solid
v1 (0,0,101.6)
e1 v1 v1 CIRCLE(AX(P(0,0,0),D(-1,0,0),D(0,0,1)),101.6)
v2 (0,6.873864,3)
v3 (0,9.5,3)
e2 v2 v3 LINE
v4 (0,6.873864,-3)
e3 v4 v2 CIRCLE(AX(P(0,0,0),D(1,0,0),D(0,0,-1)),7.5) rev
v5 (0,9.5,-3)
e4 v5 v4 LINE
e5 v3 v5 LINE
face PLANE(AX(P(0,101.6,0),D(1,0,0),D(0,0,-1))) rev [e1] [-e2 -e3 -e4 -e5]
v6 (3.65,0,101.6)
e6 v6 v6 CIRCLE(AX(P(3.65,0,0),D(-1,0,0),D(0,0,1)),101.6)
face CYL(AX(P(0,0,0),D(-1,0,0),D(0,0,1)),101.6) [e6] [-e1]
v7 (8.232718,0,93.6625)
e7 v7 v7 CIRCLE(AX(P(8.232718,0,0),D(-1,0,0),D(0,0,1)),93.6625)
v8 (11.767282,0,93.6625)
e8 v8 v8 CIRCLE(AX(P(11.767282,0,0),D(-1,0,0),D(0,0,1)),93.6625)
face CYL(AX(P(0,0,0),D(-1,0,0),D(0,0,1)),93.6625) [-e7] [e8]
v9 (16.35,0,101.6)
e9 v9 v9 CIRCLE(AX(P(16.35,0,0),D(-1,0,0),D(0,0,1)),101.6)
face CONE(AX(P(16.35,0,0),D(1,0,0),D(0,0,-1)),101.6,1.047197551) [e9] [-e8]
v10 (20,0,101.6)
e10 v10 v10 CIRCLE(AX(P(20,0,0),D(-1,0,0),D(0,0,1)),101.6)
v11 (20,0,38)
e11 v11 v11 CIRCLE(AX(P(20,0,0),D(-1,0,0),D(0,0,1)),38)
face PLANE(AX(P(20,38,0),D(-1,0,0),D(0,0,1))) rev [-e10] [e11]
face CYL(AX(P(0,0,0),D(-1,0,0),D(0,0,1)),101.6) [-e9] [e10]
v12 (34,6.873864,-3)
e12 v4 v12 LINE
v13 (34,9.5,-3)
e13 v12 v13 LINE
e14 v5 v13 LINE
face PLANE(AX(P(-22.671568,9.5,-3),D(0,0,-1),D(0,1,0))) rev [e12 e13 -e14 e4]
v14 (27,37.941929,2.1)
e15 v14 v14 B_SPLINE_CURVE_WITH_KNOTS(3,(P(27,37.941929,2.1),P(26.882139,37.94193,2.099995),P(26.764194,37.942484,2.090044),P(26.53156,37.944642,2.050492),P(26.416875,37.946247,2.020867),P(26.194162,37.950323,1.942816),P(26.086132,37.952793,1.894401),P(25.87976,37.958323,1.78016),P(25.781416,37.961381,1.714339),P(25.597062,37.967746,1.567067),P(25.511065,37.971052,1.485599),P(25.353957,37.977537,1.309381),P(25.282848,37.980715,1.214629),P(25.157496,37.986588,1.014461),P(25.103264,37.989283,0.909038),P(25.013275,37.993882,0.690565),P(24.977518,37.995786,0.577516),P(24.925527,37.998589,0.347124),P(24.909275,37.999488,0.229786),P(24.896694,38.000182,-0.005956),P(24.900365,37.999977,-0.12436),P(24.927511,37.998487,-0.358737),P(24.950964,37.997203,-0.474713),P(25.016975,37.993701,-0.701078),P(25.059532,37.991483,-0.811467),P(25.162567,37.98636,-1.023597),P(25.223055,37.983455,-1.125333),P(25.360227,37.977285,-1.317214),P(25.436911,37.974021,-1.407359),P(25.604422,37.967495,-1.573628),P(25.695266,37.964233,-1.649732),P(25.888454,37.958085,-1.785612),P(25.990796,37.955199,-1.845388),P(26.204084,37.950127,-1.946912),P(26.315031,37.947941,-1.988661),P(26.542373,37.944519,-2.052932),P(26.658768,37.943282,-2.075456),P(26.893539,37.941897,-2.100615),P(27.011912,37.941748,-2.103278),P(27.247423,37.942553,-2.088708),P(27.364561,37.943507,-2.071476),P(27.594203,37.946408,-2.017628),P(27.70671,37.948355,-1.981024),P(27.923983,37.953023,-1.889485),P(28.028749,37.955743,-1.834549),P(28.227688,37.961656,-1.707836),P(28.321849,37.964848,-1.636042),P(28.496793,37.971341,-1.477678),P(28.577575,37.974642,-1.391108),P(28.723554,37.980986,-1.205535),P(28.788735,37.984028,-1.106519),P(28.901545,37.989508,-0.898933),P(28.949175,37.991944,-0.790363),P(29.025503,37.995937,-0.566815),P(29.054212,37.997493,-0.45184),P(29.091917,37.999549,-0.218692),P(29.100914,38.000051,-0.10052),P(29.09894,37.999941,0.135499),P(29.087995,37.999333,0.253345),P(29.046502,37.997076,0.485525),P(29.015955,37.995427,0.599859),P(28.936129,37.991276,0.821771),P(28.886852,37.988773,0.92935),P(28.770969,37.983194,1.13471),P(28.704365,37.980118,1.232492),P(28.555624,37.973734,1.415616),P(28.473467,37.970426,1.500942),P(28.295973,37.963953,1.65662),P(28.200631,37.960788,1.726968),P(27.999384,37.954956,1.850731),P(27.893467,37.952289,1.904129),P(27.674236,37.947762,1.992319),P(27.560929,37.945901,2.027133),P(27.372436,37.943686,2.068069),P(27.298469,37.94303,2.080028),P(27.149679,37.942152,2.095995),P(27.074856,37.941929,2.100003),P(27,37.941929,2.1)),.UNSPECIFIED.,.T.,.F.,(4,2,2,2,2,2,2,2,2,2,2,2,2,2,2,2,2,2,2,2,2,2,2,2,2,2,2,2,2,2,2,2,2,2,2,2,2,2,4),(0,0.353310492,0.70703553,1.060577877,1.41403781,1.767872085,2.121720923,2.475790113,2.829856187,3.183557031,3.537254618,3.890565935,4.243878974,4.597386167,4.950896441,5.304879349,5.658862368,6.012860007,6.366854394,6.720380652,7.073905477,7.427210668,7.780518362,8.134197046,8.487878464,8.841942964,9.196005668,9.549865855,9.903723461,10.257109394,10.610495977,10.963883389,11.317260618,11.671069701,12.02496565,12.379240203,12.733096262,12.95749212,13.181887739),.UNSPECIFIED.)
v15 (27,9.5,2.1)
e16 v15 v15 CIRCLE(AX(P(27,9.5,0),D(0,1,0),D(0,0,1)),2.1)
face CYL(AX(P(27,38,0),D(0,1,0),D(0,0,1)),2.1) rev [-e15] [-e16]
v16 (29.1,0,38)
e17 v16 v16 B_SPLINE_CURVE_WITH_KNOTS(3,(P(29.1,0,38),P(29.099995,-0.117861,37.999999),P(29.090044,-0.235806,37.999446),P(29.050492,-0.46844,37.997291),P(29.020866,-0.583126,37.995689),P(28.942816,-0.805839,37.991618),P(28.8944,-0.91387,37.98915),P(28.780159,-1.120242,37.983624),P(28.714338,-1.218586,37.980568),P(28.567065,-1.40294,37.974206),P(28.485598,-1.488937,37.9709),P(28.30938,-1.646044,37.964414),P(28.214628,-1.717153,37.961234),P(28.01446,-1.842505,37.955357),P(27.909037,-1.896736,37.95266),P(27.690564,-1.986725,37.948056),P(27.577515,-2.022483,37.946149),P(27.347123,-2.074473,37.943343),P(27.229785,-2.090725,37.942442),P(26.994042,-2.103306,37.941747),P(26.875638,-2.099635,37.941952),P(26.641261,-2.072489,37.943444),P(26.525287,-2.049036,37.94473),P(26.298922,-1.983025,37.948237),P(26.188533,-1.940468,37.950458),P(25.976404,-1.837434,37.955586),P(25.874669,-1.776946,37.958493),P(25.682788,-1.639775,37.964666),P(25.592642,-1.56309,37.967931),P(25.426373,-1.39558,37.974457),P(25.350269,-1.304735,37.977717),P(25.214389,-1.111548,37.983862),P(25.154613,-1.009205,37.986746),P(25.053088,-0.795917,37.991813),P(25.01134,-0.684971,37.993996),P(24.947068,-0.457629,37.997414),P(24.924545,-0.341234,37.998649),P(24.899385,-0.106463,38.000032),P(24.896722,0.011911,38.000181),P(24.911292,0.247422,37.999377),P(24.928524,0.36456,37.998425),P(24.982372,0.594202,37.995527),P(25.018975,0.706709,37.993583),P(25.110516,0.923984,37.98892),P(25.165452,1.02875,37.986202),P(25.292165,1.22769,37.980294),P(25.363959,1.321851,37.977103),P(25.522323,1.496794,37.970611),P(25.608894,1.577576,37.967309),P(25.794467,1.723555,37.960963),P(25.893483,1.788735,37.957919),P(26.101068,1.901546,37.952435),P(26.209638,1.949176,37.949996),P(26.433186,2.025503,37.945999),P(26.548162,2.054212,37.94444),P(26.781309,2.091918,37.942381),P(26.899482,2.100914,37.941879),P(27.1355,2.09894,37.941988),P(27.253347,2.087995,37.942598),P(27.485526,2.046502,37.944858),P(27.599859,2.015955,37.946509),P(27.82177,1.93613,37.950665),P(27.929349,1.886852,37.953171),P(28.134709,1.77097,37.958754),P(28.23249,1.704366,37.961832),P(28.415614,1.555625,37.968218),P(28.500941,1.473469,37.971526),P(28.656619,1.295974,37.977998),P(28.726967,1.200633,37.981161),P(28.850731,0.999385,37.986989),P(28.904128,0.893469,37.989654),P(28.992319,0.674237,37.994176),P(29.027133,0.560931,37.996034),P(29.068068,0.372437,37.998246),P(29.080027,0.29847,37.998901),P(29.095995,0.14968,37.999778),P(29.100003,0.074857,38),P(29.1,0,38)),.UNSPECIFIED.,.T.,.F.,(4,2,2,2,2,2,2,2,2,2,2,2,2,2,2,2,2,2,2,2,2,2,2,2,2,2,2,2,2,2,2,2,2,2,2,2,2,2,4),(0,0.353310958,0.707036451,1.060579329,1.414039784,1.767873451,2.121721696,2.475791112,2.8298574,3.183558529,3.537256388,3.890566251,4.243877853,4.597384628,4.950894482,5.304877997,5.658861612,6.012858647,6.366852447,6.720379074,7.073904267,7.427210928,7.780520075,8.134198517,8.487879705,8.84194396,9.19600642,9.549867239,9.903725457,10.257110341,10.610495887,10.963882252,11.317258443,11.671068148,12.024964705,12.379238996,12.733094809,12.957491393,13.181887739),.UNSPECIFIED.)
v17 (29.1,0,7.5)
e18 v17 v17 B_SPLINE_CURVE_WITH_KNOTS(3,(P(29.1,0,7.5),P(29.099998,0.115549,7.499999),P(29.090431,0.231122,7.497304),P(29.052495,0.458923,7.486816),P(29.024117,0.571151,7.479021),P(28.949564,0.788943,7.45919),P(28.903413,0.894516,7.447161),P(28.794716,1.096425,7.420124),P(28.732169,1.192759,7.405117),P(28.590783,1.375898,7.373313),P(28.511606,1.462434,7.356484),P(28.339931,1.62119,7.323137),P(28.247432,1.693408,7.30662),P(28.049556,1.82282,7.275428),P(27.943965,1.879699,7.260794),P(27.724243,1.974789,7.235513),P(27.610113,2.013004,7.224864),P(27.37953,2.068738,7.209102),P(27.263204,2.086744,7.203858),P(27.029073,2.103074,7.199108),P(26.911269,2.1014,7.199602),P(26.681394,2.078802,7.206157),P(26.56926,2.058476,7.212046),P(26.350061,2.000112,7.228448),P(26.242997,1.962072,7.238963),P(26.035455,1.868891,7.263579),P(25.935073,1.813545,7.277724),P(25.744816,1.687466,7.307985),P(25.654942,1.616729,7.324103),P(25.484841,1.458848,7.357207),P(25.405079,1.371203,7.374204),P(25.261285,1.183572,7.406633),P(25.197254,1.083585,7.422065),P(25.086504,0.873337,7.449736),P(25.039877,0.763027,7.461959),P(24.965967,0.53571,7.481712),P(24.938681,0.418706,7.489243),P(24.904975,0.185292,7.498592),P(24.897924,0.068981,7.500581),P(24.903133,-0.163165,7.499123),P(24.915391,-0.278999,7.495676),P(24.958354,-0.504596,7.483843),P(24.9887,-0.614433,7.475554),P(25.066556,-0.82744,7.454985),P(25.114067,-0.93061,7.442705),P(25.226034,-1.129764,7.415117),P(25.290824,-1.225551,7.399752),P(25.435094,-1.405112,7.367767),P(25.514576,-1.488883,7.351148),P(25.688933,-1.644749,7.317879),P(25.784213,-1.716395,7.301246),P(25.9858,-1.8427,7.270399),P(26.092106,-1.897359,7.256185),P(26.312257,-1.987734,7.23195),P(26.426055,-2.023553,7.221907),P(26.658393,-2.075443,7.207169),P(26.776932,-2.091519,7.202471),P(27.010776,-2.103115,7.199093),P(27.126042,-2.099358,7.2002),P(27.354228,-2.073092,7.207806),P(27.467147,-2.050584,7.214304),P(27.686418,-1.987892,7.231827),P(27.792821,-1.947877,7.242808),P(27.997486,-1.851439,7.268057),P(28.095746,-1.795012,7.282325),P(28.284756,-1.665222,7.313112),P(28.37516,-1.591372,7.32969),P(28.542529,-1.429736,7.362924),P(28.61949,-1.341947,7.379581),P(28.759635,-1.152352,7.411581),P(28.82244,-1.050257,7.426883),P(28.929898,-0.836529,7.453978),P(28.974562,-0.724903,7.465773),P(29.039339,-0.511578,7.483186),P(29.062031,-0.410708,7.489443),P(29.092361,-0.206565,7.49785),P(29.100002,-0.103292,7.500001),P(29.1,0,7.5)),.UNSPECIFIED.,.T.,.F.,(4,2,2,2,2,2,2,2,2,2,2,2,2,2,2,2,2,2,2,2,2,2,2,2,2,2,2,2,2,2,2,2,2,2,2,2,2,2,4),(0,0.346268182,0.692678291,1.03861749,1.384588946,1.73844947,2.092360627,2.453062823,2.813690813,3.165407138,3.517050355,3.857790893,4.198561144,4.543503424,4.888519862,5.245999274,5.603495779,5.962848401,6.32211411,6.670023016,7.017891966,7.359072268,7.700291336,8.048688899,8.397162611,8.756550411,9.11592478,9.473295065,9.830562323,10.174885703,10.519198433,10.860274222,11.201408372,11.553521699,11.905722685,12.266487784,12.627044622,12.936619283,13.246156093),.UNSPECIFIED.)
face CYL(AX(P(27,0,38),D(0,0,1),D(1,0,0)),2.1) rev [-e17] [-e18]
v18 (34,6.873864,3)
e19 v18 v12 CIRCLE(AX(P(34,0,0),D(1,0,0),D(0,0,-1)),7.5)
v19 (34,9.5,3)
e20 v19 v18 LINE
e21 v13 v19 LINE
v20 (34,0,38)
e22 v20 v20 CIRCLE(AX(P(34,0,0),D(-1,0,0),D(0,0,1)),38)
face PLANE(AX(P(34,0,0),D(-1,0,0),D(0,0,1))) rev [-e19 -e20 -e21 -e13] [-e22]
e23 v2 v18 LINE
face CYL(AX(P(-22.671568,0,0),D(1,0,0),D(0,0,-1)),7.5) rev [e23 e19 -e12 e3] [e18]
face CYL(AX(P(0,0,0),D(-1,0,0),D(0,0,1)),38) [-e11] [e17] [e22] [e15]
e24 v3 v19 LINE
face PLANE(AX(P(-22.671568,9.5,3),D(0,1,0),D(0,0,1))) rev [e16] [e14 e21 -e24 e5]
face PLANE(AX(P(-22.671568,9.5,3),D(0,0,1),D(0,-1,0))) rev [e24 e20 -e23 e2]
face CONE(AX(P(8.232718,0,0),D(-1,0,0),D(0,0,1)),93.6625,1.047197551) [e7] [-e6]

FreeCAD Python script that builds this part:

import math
import FreeCAD as App
import Part
import Sketcher

V = App.Vector
Q = App.Units.Quantity

doc = App.newDocument("Part")
body = doc.addObject("PartDesign::Body", "Body")

sketch1 = body.newObject("Sketcher::SketchObject", "Sketch")
sketch1.AttachmentSupport = (doc.getObject("XY_Plane"), [""])
sketch1.MapMode = "FlatFace"
sketch1.addGeometry([
    Part.LineSegment(V(0, 0, 0), V(34, 0, 0)),
    Part.LineSegment(V(34, 0, 0), V(34, 38, 0)),
    Part.LineSegment(V(34, 38, 0), V(20, 38, 0)),
    Part.LineSegment(V(20, 38, 0), V(20, 101.6, 0)),
    Part.LineSegment(V(20, 101.6, 0), V(16.4, 101.6, 0)),
    Part.LineSegment(V(16.4, 101.6, 0), V(11.8, 93.7, 0)),
    Part.LineSegment(V(11.8, 93.7, 0), V(8.2, 93.7, 0)),
    Part.LineSegment(V(8.2, 93.7, 0), V(3.6, 101.6, 0)),
    Part.LineSegment(V(3.6, 101.6, 0), V(0, 101.6, 0)),
    Part.LineSegment(V(0, 101.6, 0), V(0, 0, 0)),
], False)
sketch1.addConstraint([
    Sketcher.Constraint("Coincident", 0, 2, 1, 1),
    Sketcher.Constraint("Coincident", 1, 2, 2, 1),
    Sketcher.Constraint("Coincident", 2, 2, 3, 1),
    Sketcher.Constraint("Coincident", 3, 2, 4, 1),
    Sketcher.Constraint("Coincident", 4, 2, 5, 1),
    Sketcher.Constraint("Coincident", 5, 2, 6, 1),
    Sketcher.Constraint("Coincident", 6, 2, 7, 1),
    Sketcher.Constraint("Coincident", 7, 2, 8, 1),
    Sketcher.Constraint("Coincident", 8, 2, 9, 1),
    Sketcher.Constraint("Coincident", 9, 2, 0, 1),
    Sketcher.Constraint("Horizontal", 0),
    Sketcher.Constraint("Vertical", 1),
    Sketcher.Constraint("Horizontal", 2),
    Sketcher.Constraint("Vertical", 3),
    Sketcher.Constraint("Horizontal", 4),
    Sketcher.Constraint("Horizontal", 6),
    Sketcher.Constraint("Horizontal", 8),
    Sketcher.Constraint("Vertical", 9),
    Sketcher.Constraint("Coincident", 9, 2, -1, 1),
    Sketcher.Constraint("Horizontal", 4, 2, 7, 2),
    Sketcher.Constraint("Equal", 4, 8),
    Sketcher.Constraint("Equal", 5, 7),
    Sketcher.Constraint("DistanceX", 0, 1, 0, 2, Q("34 mm")),
    Sketcher.Constraint("DistanceX", 2, 2, 2, 1, Q("14 mm")),
    Sketcher.Constraint("DistanceY", 1, 1, 1, 2, Q("38 mm")),
    Sketcher.Constraint("Angle", 5, Q("-120 deg")),
    Sketcher.Constraint("DistanceY", 3, 1, 3, 2, Q("63.6 mm")),
    Sketcher.Constraint("DistanceX", 4, 2, 4, 1, Q("3.65 mm")),
    Sketcher.Constraint("DistanceY", -1, 1, 5, 2, Q("93.6625 mm")),
])
revolution = body.newObject("PartDesign::Revolution", "Revolution")
revolution.Profile = sketch1
revolution.ReferenceAxis = (sketch1, ["H_Axis"])
revolution.Angle = 360

sketch2 = body.newObject("Sketcher::SketchObject", "Sketch001")
sketch2.AttachmentSupport = (doc.getObject("YZ_Plane"), [""])
sketch2.MapMode = "FlatFace"
sketch2.AttachmentOffset = App.Placement(V(0, 0, 34), App.Rotation())
sketch2.addGeometry([
    Part.LineSegment(V(9.5, -3, 0), V(9.5, 3, 0)),
    Part.LineSegment(V(9.5, 3, 0), V(6.9, 3, 0)),
    Part.ArcOfCircle(Part.Circle(V(0, 0, 0), V(0, 0, 1), 7.5), math.radians(24), math.radians(336)),
    Part.LineSegment(V(6.9, -3, 0), V(9.5, -3, 0)),
], False)
sketch2.addConstraint([
    Sketcher.Constraint("Coincident", 0, 2, 1, 1),
    Sketcher.Constraint("Coincident", 1, 2, 2, 1),
    Sketcher.Constraint("Coincident", 2, 2, 3, 1),
    Sketcher.Constraint("Coincident", 3, 2, 0, 1),
    Sketcher.Constraint("Vertical", 0),
    Sketcher.Constraint("Horizontal", 1),
    Sketcher.Constraint("Horizontal", 3),
    Sketcher.Constraint("Coincident", 2, 3, -1, 1),
    Sketcher.Constraint("Vertical", 1, 2, 2, 2),
    Sketcher.Constraint("Radius", 2, Q("7.5 mm")),
    Sketcher.Constraint("DistanceY", 0, 1, 0, 2, Q("6 mm")),
    Sketcher.Constraint("DistanceX", -1, 1, 0, 2, Q("9.5 mm")),
])
pocket1 = body.newObject("PartDesign::Pocket", "Pocket")
pocket1.Profile = sketch2
pocket1.Length = 34

sketch3 = body.newObject("Sketcher::SketchObject", "Sketch002")
sketch3.AttachmentSupport = (doc.getObject("XY_Plane"), [""])
sketch3.MapMode = "FlatFace"
sketch3.AttachmentOffset = App.Placement(V(0, 0, 38), App.Rotation())
sketch3.addGeometry(Part.Circle(V(27, 0, 0), V(0, 0, 1), 2.1), False)
sketch3.addConstraint([
    Sketcher.Constraint("PointOnObject", 0, 3, -1),
    Sketcher.Constraint("Diameter", 0, Q("4.2 mm")),
    Sketcher.Constraint("DistanceX", -1, 1, 0, 3, Q("27 mm")),
])
doc.recompute()
hole = body.newObject("PartDesign::Hole", "Hole")
hole.Profile = sketch3
hole.ThreadType = "None"
hole.Diameter = 4.2
hole.DepthType = "Dimension"
hole.Depth = 40
hole.DrillPoint = "Angled"
hole.DrillPointAngle = 118

sketch4 = body.newObject("Sketcher::SketchObject", "Sketch003")
sketch4.AttachmentSupport = (doc.getObject("XZ_Plane"), [""])
sketch4.MapMode = "FlatFace"
sketch4.AttachmentOffset = App.Placement(V(0, 0, -38), App.Rotation())
sketch4.addGeometry(Part.Circle(V(27, 0, 0), V(0, 0, 1), 2.1), False)
sketch4.addConstraint([
    Sketcher.Constraint("PointOnObject", 0, 3, -1),
    Sketcher.Constraint("Diameter", 0, Q("4.2 mm")),
    Sketcher.Constraint("DistanceX", -1, 1, 0, 3, Q("27 mm")),
])
doc.recompute()
hole2 = body.newObject("PartDesign::Hole", "Hole001")
hole2.Profile = sketch4
hole2.ThreadType = "None"
hole2.Diameter = 4.2
hole2.DepthType = "Dimension"
hole2.Depth = 40
hole2.DrillPoint = "Angled"
hole2.DrillPointAngle = 118
hole2.Reversed = True

doc.recompute()
